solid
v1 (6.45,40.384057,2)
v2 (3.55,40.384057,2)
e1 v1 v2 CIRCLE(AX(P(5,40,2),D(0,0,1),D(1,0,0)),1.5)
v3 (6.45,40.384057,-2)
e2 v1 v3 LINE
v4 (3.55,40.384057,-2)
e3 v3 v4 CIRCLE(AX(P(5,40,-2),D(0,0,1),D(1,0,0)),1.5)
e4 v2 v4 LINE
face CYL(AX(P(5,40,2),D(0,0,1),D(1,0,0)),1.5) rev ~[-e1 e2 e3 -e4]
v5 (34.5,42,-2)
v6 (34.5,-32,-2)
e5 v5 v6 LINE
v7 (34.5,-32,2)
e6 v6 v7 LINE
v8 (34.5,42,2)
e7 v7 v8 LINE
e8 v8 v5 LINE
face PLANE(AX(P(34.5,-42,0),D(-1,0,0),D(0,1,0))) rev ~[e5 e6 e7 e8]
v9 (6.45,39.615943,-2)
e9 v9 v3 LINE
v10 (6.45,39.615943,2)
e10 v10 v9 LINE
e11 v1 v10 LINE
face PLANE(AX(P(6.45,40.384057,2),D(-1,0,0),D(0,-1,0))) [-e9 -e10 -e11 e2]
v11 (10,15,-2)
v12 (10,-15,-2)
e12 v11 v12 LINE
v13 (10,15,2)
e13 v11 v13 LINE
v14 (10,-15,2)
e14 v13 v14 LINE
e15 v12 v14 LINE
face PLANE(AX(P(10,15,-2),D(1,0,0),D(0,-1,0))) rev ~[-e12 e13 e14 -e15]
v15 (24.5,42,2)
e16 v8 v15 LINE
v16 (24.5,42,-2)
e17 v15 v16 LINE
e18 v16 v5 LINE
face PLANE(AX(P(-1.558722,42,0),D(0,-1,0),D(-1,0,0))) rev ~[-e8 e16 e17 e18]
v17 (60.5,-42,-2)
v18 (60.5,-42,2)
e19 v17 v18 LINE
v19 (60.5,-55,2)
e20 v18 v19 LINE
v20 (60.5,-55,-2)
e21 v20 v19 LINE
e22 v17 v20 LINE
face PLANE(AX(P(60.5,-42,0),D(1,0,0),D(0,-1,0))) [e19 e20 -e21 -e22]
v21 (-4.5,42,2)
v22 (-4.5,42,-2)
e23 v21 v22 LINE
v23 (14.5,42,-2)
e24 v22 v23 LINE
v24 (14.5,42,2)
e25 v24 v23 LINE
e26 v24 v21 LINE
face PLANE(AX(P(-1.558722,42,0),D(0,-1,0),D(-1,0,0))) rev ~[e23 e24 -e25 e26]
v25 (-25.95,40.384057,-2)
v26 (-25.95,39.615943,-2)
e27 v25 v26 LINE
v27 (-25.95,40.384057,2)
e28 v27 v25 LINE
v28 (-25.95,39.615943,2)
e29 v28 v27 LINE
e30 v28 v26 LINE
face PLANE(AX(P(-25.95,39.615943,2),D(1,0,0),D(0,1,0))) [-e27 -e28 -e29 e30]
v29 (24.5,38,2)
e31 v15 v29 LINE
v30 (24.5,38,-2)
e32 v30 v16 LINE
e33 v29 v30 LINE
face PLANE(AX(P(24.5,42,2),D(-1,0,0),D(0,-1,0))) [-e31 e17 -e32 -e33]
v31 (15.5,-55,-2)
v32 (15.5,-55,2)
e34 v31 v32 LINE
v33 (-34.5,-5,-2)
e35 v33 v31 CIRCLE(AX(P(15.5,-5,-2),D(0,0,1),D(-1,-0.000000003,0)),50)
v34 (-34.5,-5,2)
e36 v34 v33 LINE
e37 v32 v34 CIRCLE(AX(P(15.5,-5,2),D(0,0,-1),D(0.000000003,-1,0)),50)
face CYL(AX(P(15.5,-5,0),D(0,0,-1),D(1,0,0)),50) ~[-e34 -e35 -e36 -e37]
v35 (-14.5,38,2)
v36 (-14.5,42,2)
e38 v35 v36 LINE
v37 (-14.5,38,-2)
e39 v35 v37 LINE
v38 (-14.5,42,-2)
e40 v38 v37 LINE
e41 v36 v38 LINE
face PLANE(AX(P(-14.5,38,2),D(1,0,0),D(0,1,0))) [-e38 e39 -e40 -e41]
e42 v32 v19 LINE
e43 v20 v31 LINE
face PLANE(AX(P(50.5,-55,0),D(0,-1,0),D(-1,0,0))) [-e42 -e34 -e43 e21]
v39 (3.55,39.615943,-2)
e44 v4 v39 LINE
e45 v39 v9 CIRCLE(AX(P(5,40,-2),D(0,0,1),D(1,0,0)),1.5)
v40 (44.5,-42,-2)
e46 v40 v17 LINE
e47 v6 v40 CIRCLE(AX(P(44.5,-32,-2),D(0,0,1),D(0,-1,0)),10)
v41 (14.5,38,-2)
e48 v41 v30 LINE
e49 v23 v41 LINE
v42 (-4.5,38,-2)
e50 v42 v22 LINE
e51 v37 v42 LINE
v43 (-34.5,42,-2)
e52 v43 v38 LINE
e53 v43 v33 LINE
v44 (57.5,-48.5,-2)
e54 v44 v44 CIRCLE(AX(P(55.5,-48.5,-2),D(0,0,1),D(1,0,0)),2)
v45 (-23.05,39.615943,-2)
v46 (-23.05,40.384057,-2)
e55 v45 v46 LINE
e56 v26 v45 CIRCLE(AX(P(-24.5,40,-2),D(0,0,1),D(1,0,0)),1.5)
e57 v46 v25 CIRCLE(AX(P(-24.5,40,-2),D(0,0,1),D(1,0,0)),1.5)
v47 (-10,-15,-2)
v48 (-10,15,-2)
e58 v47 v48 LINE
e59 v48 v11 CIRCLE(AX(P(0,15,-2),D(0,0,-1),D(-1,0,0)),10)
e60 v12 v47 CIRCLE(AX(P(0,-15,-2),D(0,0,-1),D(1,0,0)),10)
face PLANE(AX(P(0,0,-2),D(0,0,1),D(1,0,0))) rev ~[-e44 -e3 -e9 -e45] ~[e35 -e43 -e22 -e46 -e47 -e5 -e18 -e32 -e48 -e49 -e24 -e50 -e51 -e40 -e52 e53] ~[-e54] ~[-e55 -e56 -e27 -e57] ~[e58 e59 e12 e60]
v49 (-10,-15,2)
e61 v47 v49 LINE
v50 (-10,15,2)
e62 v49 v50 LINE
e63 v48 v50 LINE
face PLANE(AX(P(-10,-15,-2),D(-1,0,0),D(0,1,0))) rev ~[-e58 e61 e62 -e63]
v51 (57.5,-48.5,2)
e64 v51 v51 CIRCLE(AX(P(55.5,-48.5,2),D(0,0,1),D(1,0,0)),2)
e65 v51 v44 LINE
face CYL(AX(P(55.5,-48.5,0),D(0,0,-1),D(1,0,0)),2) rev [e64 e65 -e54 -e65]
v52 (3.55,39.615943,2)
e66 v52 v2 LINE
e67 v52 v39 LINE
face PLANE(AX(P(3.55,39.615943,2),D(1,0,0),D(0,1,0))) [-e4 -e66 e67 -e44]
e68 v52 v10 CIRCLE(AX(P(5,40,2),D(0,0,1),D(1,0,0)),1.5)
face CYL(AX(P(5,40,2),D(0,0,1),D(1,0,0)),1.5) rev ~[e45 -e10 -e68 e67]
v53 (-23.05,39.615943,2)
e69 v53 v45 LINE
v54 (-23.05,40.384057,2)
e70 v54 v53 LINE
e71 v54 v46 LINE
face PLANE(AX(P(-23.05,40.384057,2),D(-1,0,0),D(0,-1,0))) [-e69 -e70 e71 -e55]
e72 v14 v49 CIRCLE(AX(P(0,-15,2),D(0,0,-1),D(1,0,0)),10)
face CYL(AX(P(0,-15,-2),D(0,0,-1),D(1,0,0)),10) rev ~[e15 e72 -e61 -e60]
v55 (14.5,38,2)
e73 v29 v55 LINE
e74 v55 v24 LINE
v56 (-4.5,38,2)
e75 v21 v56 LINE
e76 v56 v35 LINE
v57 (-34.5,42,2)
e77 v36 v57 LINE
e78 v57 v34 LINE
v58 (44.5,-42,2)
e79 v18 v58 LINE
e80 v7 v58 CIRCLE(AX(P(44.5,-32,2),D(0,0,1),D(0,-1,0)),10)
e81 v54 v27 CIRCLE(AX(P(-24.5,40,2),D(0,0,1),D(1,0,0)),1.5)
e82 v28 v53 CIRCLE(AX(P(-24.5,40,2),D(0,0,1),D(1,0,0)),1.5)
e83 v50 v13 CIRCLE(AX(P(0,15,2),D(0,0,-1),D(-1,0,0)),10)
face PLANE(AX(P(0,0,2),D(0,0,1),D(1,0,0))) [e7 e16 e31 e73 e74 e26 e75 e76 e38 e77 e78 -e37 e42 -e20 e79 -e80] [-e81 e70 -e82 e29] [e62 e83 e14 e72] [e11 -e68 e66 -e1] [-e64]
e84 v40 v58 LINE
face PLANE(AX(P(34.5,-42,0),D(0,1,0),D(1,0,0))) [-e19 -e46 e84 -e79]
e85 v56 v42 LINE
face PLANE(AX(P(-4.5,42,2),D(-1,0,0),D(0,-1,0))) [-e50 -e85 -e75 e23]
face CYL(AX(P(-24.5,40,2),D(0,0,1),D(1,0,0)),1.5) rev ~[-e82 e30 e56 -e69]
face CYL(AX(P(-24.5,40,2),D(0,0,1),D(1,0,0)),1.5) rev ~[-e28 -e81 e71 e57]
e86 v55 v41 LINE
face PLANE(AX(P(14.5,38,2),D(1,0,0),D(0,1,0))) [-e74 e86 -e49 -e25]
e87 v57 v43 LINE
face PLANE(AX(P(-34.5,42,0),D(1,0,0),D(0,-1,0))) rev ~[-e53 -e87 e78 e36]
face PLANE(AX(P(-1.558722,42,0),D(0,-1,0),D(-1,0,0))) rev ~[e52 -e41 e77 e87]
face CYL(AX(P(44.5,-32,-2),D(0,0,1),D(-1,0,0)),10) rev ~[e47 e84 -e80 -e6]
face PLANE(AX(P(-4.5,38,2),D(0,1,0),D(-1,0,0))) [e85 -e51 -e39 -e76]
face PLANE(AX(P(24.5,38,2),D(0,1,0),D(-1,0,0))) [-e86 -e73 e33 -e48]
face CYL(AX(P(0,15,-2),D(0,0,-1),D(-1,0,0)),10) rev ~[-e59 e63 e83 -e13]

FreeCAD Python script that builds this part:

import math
import FreeCAD as App
import Part
import Sketcher

V = App.Vector


def edges_at(feature, points):
    """Names of the edges that pass closest to the given points."""
    edges = feature.Shape.Edges
    near = lambda p: min(range(len(edges)), key=lambda i: edges[i].distToShape(Part.Vertex(*p))[0])
    return sorted({f"Edge{near(p) + 1}" for p in points})

doc = App.newDocument("Part")
params = doc.addObject("Spreadsheet::Sheet", "Params")
for row, (alias, value) in enumerate([
    ("sketch1_diameter", "4 mm"),
    ("sketch1_radius", "50 mm"),
    ("sketch1_width", "69 mm"),
    ("sketch1_width2", "45 mm"),
    ("sketch1_height", "13 mm"),
    ("pad1_length", "4 mm"),
    ("sketch2_width", "10 mm"),
    ("sketch2_height", "4 mm"),
    ("fillet_radius", "10 mm"),
    ("sketch3_radius", "1.5 mm"),
    ("pocket2_length", "4 mm"),
    ("sketch4_radius", "10 mm"),
    ("sketch4_height", "30 mm"),
], start=1):
    params.set(f"A{row}", alias)
    params.set(f"B{row}", "=" + value)
    params.setAlias(f"B{row}", alias)

body = doc.addObject("PartDesign::Body", "Body")

# Sketch on XY plane
sketch1 = body.newObject("Sketcher::SketchObject", "Sketch")
sketch1.AttachmentSupport = (doc.getObject("XY_Plane"), [""])
sketch1.MapMode = "FlatFace"
sketch1.addGeometry([
    Part.ArcOfCircle(Part.Circle(V(15.5, -5, 0), V(0, 0, 1), 50), math.radians(-180), math.radians(-90)),  # 0
    Part.LineSegment(V(15.5, -55, 0), V(60.5, -55, 0)),  # 1
    Part.LineSegment(V(60.5, -55, 0), V(60.5, -42, 0)),  # 2
    Part.LineSegment(V(60.5, -42, 0), V(34.5, -42, 0)),  # 3
    Part.LineSegment(V(34.5, -42, 0), V(34.5, 42, 0)),  # 4
    Part.LineSegment(V(34.5, 42, 0), V(-34.5, 42, 0)),  # 5
    Part.LineSegment(V(-34.5, 42, 0), V(-34.5, -5, 0)),  # 6
    Part.Circle(V(55.5, -48.5, 0), V(0, 0, 1), 2),  # 7
], False)
sketch1.addConstraint([
    Sketcher.Constraint("Tangent", 0, 2, 1, 1),
    Sketcher.Constraint("Coincident", 1, 2, 2, 1),
    Sketcher.Constraint("Coincident", 2, 2, 3, 1),
    Sketcher.Constraint("Coincident", 3, 2, 4, 1),
    Sketcher.Constraint("Coincident", 4, 2, 5, 1),
    Sketcher.Constraint("Coincident", 5, 2, 6, 1),
    Sketcher.Constraint("Tangent", 6, 2, 0, 1),
    Sketcher.Constraint("Horizontal", 1),
    Sketcher.Constraint("Vertical", 2),
    Sketcher.Constraint("Horizontal", 3),
    Sketcher.Constraint("Vertical", 4),
    Sketcher.Constraint("Horizontal", 5),
    Sketcher.Constraint("Vertical", 6),
    Sketcher.Constraint("Symmetric", 3, 2, 5, 2, -1, 1),
    Sketcher.Constraint("Diameter", 7, 4.0),
    Sketcher.Constraint("Radius", 0, 50.0),
    Sketcher.Constraint("DistanceX", 5, 2, 5, 1, 69.0),
    Sketcher.Constraint("DistanceX", 1, 1, 1, 2, 45.0),
    Sketcher.Constraint("DistanceY", 2, 1, 2, 2, 13.0),
    Sketcher.Constraint("DistanceY", 4, 1, 4, 2, 84.0),
    Sketcher.Constraint("DistanceX", 0, 3, 7, 3, 40.0),
    Sketcher.Constraint("DistanceY", 7, 3, -1, 1, 48.5),
])
sketch1.setExpression("Constraints[14]", "Params.sketch1_diameter")
sketch1.setExpression("Constraints[15]", "Params.sketch1_radius")
sketch1.setExpression("Constraints[16]", "Params.sketch1_width")
sketch1.setExpression("Constraints[17]", "Params.sketch1_width2")
sketch1.setExpression("Constraints[18]", "Params.sketch1_height")
pad1 = body.newObject("PartDesign::Pad", "Pad")
pad1.Profile = sketch1
pad1.setExpression("Length", "Params.pad1_length")
pad1.Midplane = True

# Sketch on XY plane
sketch2 = body.newObject("Sketcher::SketchObject", "Sketch001")
sketch2.AttachmentSupport = (doc.getObject("XY_Plane"), [""])
sketch2.MapMode = "FlatFace"
sketch2.AttachmentOffset = App.Placement(V(0, 0, 2), App.Rotation())
sketch2.addGeometry([
    Part.LineSegment(V(24.5, 38, 0), V(24.5, 42, 0)),  # 0
    Part.LineSegment(V(24.5, 42, 0), V(14.5, 42, 0)),  # 1
    Part.LineSegment(V(14.5, 42, 0), V(14.5, 38, 0)),  # 2
    Part.LineSegment(V(14.5, 38, 0), V(24.5, 38, 0)),  # 3
    Part.LineSegment(V(-4.5, 38, 0), V(-4.5, 42, 0)),  # 4
    Part.LineSegment(V(-4.5, 42, 0), V(-14.5, 42, 0)),  # 5
    Part.LineSegment(V(-14.5, 42, 0), V(-14.5, 38, 0)),  # 6
    Part.LineSegment(V(-14.5, 38, 0), V(-4.5, 38, 0)),  # 7
], False)
sketch2.addConstraint([
    Sketcher.Constraint("Coincident", 0, 2, 1, 1),
    Sketcher.Constraint("Coincident", 1, 2, 2, 1),
    Sketcher.Constraint("Coincident", 2, 2, 3, 1),
    Sketcher.Constraint("Coincident", 3, 2, 0, 1),
    Sketcher.Constraint("Coincident", 4, 2, 5, 1),
    Sketcher.Constraint("Coincident", 5, 2, 6, 1),
    Sketcher.Constraint("Coincident", 6, 2, 7, 1),
    Sketcher.Constraint("Coincident", 7, 2, 4, 1),
    Sketcher.Constraint("Vertical", 0),
    Sketcher.Constraint("Horizontal", 1),
    Sketcher.Constraint("Vertical", 2),
    Sketcher.Constraint("Horizontal", 3),
    Sketcher.Constraint("Vertical", 4),
    Sketcher.Constraint("Horizontal", 5),
    Sketcher.Constraint("Vertical", 6),
    Sketcher.Constraint("Horizontal", 7),
    Sketcher.Constraint("Symmetric", 1, 2, 5, 2, -2),
    Sketcher.Constraint("Horizontal", 3, 2, 6, 2),
    Sketcher.Constraint("Equal", 3, 5),
    Sketcher.Constraint("DistanceX", 1, 2, 1, 1, 10.0),
    Sketcher.Constraint("DistanceY", 0, 1, 0, 2, 4.0),
    Sketcher.Constraint("DistanceY", -1, 1, 0, 2, 42.0),
    Sketcher.Constraint("DistanceX", 4, 2, 1, 2, 19.0),
])
sketch2.setExpression("Constraints[19]", "Params.sketch2_width")
sketch2.setExpression("Constraints[20]", "Params.sketch2_height")
pocket1 = body.newObject("PartDesign::Pocket", "Pocket")
pocket1.Profile = sketch2
pocket1.Type = "UpToFirst"
doc.recompute()

fillet = body.newObject("PartDesign::Fillet", "Fillet")
fillet.Base = (pocket1, edges_at(pocket1, [(34.5, -42, 0)]))
fillet.setExpression("Radius", "Params.fillet_radius")

# Sketch on XY plane
sketch3 = body.newObject("Sketcher::SketchObject", "Sketch002")
sketch3.AttachmentSupport = (doc.getObject("XY_Plane"), [""])
sketch3.MapMode = "FlatFace"
sketch3.AttachmentOffset = App.Placement(V(0, 0, 2), App.Rotation())
sketch3.addGeometry([
    Part.LineSegment(V(-25.9, 40.4, 0), V(-25.9, 39.6, 0)),  # 0
    Part.ArcOfCircle(Part.Circle(V(-24.5, 40, 0), V(0, 0, 1), 1.5), math.radians(-165), math.radians(-15)),  # 1
    Part.LineSegment(V(-23.1, 39.6, 0), V(-23.1, 40.4, 0)),  # 2
    Part.ArcOfCircle(Part.Circle(V(-24.5, 40, 0), V(0, 0, 1), 1.5), math.radians(15), math.radians(165)),  # 3
    Part.LineSegment(V(3.5, 40.4, 0), V(3.5, 39.6, 0)),  # 4
    Part.ArcOfCircle(Part.Circle(V(5, 40, 0), V(0, 0, 1), 1.5), math.radians(-165), math.radians(-15)),  # 5
    Part.LineSegment(V(6.5, 39.6, 0), V(6.5, 40.4, 0)),  # 6
    Part.ArcOfCircle(Part.Circle(V(5, 40, 0), V(0, 0, 1), 1.5), math.radians(15), math.radians(165)),  # 7
], False)
sketch3.addConstraint([
    Sketcher.Constraint("Coincident", 0, 2, 1, 1),
    Sketcher.Constraint("Coincident", 1, 2, 2, 1),
    Sketcher.Constraint("Coincident", 2, 2, 3, 1),
    Sketcher.Constraint("Coincident", 3, 2, 0, 1),
    Sketcher.Constraint("Coincident", 4, 2, 5, 1),
    Sketcher.Constraint("Coincident", 5, 2, 6, 1),
    Sketcher.Constraint("Coincident", 6, 2, 7, 1),
    Sketcher.Constraint("Coincident", 7, 2, 4, 1),
    Sketcher.Constraint("Vertical", 0),
    Sketcher.Constraint("Vertical", 2),
    Sketcher.Constraint("Vertical", 4),
    Sketcher.Constraint("Vertical", 6),
    Sketcher.Constraint("Coincident", 3, 3, 1, 3),
    Sketcher.Constraint("Coincident", 7, 3, 5, 3),
    Sketcher.Constraint("Equal", 1, 3),
    Sketcher.Constraint("Equal", 3, 5),
    Sketcher.Constraint("Equal", 5, 7),
    Sketcher.Constraint("Horizontal", 3, 3, 5, 3),
    Sketcher.Constraint("Horizontal", 0, 2, 1, 2),
    Sketcher.Constraint("Horizontal", 1, 2, 4, 2),
    Sketcher.Constraint("Horizontal", 4, 2, 5, 2),
    Sketcher.Constraint("Radius", 1, 1.5),
    Sketcher.Constraint("DistanceY", -1, 1, 1, 3, 40.0),
    Sketcher.Constraint("DistanceX", -1, 1, 5, 3, 5.0),
    Sketcher.Constraint("DistanceX", 1, 3, -1, 1, 24.5),
    Sketcher.Constraint("DistanceX", 0, 2, 1, 2, 2.9),
])
sketch3.setExpression("Constraints[21]", "Params.sketch3_radius")
pocket2 = body.newObject("PartDesign::Pocket", "Pocket001")
pocket2.Profile = sketch3
pocket2.setExpression("Length", "Params.pocket2_length")

# Sketch on XY plane
sketch4 = body.newObject("Sketcher::SketchObject", "Sketch003")
sketch4.AttachmentSupport = (doc.getObject("XY_Plane"), [""])
sketch4.MapMode = "FlatFace"
sketch4.AttachmentOffset = App.Placement(V(0, 0, -2), App.Rotation())
sketch4.addGeometry([
    Part.ArcOfCircle(Part.Circle(V(0, -15, 0), V(0, 0, 1), 10), math.radians(180), math.radians(360)),
    Part.LineSegment(V(-10, -15, 0), V(-10, 15, 0)),
    Part.ArcOfCircle(Part.Circle(V(0, 15, 0), V(0, 0, 1), 10), math.radians(0), math.radians(180)),
    Part.LineSegment(V(10, 15, 0), V(10, -15, 0)),
], False)
sketch4.addConstraint([
    Sketcher.Constraint("Tangent", 0, 1, 1, 1),
    Sketcher.Constraint("Tangent", 1, 2, 2, 2),
    Sketcher.Constraint("Tangent", 2, 1, 3, 1),
    Sketcher.Constraint("Tangent", 3, 2, 0, 2),
    Sketcher.Constraint("Vertical", 1),
    Sketcher.Constraint("Vertical", 3),
    Sketcher.Constraint("Symmetric", 0, 3, 2, 3, -1, 1),
    Sketcher.Constraint("Radius", 0, 10.0),
    Sketcher.Constraint("DistanceY", 1, 1, 1, 2, 30.0),
])
sketch4.setExpression("Constraints[7]", "Params.sketch4_radius")
sketch4.setExpression("Constraints[8]", "Params.sketch4_height")
pocket3 = body.newObject("PartDesign::Pocket", "Pocket002")
pocket3.Profile = sketch4
pocket3.Type = "UpToFirst"
pocket3.Reversed = True

doc.recompute()
